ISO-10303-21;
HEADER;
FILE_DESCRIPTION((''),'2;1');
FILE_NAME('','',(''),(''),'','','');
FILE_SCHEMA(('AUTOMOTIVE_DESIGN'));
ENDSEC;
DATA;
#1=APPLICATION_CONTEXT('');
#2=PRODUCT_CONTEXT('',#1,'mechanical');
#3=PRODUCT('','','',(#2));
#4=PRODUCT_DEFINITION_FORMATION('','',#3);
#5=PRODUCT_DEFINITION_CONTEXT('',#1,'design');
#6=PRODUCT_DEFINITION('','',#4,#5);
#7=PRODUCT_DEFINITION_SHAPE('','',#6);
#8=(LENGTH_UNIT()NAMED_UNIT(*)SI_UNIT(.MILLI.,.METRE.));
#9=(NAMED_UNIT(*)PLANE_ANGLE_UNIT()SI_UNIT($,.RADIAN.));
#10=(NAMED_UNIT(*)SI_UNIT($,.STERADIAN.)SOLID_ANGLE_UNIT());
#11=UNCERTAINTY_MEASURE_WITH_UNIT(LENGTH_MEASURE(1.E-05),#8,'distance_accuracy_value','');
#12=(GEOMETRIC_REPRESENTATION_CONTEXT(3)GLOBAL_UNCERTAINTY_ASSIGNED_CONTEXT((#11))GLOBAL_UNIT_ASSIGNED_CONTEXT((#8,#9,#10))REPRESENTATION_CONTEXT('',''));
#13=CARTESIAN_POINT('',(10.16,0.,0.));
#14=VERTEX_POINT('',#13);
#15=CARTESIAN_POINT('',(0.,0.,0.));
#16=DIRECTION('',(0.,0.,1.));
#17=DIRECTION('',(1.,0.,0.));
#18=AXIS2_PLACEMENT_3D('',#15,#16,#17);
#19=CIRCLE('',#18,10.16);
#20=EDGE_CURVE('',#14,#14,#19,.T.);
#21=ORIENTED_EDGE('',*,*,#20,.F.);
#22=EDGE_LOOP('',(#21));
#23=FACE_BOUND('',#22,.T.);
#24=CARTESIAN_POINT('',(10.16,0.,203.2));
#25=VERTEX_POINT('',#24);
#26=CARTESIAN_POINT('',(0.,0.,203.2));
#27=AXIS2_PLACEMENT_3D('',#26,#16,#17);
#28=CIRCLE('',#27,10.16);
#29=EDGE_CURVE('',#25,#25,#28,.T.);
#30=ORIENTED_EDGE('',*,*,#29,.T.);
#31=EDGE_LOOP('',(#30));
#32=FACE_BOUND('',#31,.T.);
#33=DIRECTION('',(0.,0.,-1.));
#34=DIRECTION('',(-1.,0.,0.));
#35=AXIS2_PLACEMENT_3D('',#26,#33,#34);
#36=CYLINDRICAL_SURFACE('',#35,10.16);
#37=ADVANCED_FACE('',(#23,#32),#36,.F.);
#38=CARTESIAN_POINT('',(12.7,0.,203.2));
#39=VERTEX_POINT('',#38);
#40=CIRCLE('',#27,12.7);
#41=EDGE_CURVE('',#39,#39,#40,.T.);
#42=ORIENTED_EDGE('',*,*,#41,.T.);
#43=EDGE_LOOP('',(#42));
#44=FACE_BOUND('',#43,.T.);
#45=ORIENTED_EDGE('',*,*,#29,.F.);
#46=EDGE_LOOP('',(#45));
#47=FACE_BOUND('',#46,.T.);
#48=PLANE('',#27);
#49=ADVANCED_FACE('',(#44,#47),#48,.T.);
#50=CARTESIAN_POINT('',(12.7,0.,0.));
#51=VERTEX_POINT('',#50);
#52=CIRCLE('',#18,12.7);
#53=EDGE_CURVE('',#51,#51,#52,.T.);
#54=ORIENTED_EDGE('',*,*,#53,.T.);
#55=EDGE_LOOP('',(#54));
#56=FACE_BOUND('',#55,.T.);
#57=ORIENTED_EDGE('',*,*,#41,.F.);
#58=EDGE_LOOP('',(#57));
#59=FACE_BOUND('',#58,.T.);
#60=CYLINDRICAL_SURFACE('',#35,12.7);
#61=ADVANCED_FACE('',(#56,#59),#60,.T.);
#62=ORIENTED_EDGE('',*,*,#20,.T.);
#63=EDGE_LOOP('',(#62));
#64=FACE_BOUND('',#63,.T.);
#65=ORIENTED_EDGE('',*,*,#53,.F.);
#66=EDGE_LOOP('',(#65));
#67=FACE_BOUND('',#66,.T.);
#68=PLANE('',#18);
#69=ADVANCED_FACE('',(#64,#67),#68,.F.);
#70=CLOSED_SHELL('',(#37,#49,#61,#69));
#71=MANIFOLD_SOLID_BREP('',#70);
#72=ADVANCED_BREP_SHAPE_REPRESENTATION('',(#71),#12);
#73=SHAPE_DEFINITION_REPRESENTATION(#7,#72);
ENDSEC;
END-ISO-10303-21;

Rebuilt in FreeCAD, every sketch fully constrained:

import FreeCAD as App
import Part
import Sketcher
from FreeCAD import Vector
Q = App.Units.Quantity

doc = App.newDocument("Part")
body = doc.addObject("PartDesign::Body", "Body")

sketch1 = body.newObject("Sketcher::SketchObject", "Sketch")
sketch1.AttachmentSupport = (doc.getObject("XY_Plane"), [""])
sketch1.MapMode = "FlatFace"
sketch1.addGeometry(Part.Circle(Vector(0, 0, 0), Vector(0, 0, 1), 12.7), False)
sketch1.addGeometry(Part.Circle(Vector(0, 0, 0), Vector(0, 0, 1), 10.16), False)
sketch1.addConstraint(Sketcher.Constraint("Coincident", 0, 3, -1, 1))
sketch1.addConstraint(Sketcher.Constraint("Coincident", 1, 3, -1, 1))
sketch1.addConstraint(Sketcher.Constraint("Diameter", 0, Q("1 in")))
sketch1.addConstraint(Sketcher.Constraint("Diameter", 1, Q("0.8 in")))
pad1 = body.newObject("PartDesign::Pad", "Pad")
pad1.Profile = sketch1
pad1.Length = Q("8 in")

doc.recompute()
